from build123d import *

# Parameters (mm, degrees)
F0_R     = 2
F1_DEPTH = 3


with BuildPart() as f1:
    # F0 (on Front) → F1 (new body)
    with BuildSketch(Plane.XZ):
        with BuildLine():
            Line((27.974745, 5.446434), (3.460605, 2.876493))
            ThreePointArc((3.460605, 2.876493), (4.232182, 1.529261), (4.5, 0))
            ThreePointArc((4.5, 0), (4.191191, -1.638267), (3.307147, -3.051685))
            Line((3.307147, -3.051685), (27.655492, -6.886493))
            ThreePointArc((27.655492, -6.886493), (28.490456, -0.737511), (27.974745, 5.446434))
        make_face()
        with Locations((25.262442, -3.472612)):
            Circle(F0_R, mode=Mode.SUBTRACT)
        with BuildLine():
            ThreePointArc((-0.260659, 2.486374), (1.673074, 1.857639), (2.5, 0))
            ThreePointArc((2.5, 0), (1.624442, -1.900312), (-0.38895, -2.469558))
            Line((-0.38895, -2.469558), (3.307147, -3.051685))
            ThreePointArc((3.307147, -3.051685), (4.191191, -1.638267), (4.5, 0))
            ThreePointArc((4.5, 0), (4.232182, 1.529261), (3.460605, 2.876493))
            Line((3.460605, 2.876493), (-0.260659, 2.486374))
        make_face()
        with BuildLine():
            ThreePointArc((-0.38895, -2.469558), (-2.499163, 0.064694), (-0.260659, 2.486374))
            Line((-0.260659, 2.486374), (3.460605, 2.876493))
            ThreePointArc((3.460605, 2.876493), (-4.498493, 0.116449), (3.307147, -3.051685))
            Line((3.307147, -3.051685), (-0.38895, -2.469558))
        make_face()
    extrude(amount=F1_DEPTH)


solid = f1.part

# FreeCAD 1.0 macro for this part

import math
import FreeCAD as App
import Part
import Sketcher

V = App.Vector

doc = App.newDocument("Part")
body = doc.addObject("PartDesign::Body", "Body")

# Sketch on XZ plane
sketch1 = body.newObject("Sketcher::SketchObject", "Sketch")
sketch1.AttachmentSupport = (doc.getObject("XZ_Plane"), [""])
sketch1.MapMode = "FlatFace"
sketch1.addGeometry(Part.LineSegment(V(28, 5.4, 0), V(3.5, 2.9, 0)), False)
sketch1.addGeometry(Part.ArcOfCircle(Part.Circle(V(0, 0, 0), V(0, 0, 1), 4.5), math.radians(40), math.radians(317)), False)
sketch1.addGeometry(Part.LineSegment(V(3.3, -3.1, 0), V(27.7, -6.9, 0)), False)
sketch1.addGeometry(Part.ArcOfCircle(Part.Circle(V(0, 0, 0), V(0, 0, 1), 28.5), math.radians(-14), math.radians(11)), False)
sketch1.addGeometry(Part.ArcOfCircle(Part.Circle(V(0, 0, 0), V(0, 0, 1), 2.5), math.radians(0), math.radians(96)), False)
sketch1.addGeometry(Part.ArcOfCircle(Part.Circle(V(0, 0, 0), V(0, 0, 1), 2.5), math.radians(-99), math.radians(0)), False)
sketch1.addGeometry(Part.ArcOfCircle(Part.Circle(V(0, 0, 0), V(0, 0, 1), 2.5), math.radians(96), math.radians(261)), False)
sketch1.addGeometry(Part.Circle(V(25.3, -3.5, 0), V(0, 0, 1), 2), False)
sketch1.addConstraint(Sketcher.Constraint("Coincident", 0, 2, 1, 1))
sketch1.addConstraint(Sketcher.Constraint("Coincident", 1, 2, 2, 1))
sketch1.addConstraint(Sketcher.Constraint("Coincident", 2, 2, 3, 1))
sketch1.addConstraint(Sketcher.Constraint("Coincident", 3, 2, 0, 1))
sketch1.addConstraint(Sketcher.Constraint("Tangent", 4, 1, 5, 2))
sketch1.addConstraint(Sketcher.Constraint("Tangent", 5, 1, 6, 2))
sketch1.addConstraint(Sketcher.Constraint("Tangent", 6, 1, 4, 2))
sketch1.addConstraint(Sketcher.Constraint("Coincident", 1, 3, -1, 1))
sketch1.addConstraint(Sketcher.Constraint("Coincident", 3, 3, -1, 1))
sketch1.addConstraint(Sketcher.Constraint("Coincident", 4, 3, -1, 1))
sketch1.addConstraint(Sketcher.Constraint("PointOnObject", 4, 1, -1))
sketch1.addConstraint(Sketcher.Constraint("Equal", 0, 2))
sketch1.addConstraint(Sketcher.Constraint("Diameter", 7, 4.0))
sketch1.addConstraint(Sketcher.Constraint("Radius", 1, 4.5))
sketch1.addConstraint(Sketcher.Constraint("Radius", 4, 2.5))
sketch1.addConstraint(Sketcher.Constraint("Radius", 3, 28.500005))
sketch1.addConstraint(Sketcher.Constraint("DistanceX", 1, 2, 3, 2, 24.667598))
sketch1.addConstraint(Sketcher.Constraint("Distance", 0, 24.648482))
sketch1.addConstraint(Sketcher.Constraint("DistanceX", -1, 1, 7, 3, 25.262442))
sketch1.addConstraint(Sketcher.Constraint("DistanceY", 7, 3, -1, 1, 3.472612))
sketch1.addConstraint(Sketcher.Constraint("DistanceX", -1, 1, 2, 2, 27.655492))
sketch1.addConstraint(Sketcher.Constraint("DistanceX", 5, 1, -1, 1, 0.38895))
sketch1.addConstraint(Sketcher.Constraint("DistanceX", 6, 1, -1, 1, 0.260659))
pad1 = body.newObject("PartDesign::Pad", "Pad")
pad1.Profile = sketch1
pad1.Length = 3

doc.recompute()
